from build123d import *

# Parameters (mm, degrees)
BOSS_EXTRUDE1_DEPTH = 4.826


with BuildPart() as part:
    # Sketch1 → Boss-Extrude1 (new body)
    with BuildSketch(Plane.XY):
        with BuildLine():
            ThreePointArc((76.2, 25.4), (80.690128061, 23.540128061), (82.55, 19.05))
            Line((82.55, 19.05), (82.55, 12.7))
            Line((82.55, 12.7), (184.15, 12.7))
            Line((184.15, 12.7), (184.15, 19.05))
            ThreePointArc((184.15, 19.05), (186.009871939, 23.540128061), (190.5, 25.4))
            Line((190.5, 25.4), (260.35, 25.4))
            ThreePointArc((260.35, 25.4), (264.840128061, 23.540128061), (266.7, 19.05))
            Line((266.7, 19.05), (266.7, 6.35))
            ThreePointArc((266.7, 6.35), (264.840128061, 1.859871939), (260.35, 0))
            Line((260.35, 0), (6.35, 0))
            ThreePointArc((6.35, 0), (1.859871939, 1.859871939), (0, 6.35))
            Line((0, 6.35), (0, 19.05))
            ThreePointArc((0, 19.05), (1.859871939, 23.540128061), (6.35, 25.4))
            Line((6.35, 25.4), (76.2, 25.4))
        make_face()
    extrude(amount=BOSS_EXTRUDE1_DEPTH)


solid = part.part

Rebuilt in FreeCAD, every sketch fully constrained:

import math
import FreeCAD as App
import Part
import Sketcher
from FreeCAD import Vector
Q = App.Units.Quantity

doc = App.newDocument("Part")
params = doc.addObject("Spreadsheet::Sheet", "Params")
for row, (alias, value) in enumerate([
    ("sketch1_width", "10 in"),
    ("sketch1_width2", "4 in"),
    ("sketch1_radius", "0.25 in"),
    ("sketch1_height", "0.5 in"),
    ("sketch1_height2", "0.25 in"),
    ("pad1_length", "0.19 in"),
], start=1):
    params.set(f"A{row}", alias)
    params.set(f"B{row}", "=" + value)
    params.setAlias(f"B{row}", alias)

body = doc.addObject("PartDesign::Body", "Body")

# Sketch on XY plane
sketch1 = doc.addObject("Sketcher::SketchObject", "Sketch")
body.addObject(sketch1)
sketch1.AttachmentSupport = (doc.XY_Plane, [""])
sketch1.MapMode = "FlatFace"
sketch1.addGeometry(Part.ArcOfCircle(Part.Circle(Vector(76, 19, 0), Vector(0, 0, 1), 6), math.radians(0), math.radians(90)), False)
sketch1.addGeometry(Part.LineSegment(Vector(76, 25, 0), Vector(6, 25, 0)), False)
sketch1.addGeometry(Part.ArcOfCircle(Part.Circle(Vector(6, 19, 0), Vector(0, 0, 1), 6), math.radians(90), math.radians(180)), False)
sketch1.addGeometry(Part.LineSegment(Vector(0, 19, 0), Vector(0, 6, 0)), False)
sketch1.addGeometry(Part.ArcOfCircle(Part.Circle(Vector(6, 6, 0), Vector(0, 0, 1), 6), math.radians(180), math.radians(270)), False)
sketch1.addGeometry(Part.LineSegment(Vector(6, 0, 0), Vector(260, 0, 0)), False)
sketch1.addGeometry(Part.ArcOfCircle(Part.Circle(Vector(260, 6, 0), Vector(0, 0, 1), 6), math.radians(-90), math.radians(0)), False)
sketch1.addGeometry(Part.LineSegment(Vector(267, 6, 0), Vector(267, 19, 0)), False)
sketch1.addGeometry(Part.ArcOfCircle(Part.Circle(Vector(260, 19, 0), Vector(0, 0, 1), 6), math.radians(0), math.radians(90)), False)
sketch1.addGeometry(Part.LineSegment(Vector(260, 25, 0), Vector(190, 25, 0)), False)
sketch1.addGeometry(Part.ArcOfCircle(Part.Circle(Vector(190, 19, 0), Vector(0, 0, 1), 6), math.radians(90), math.radians(180)), False)
sketch1.addGeometry(Part.LineSegment(Vector(184, 19, 0), Vector(184, 13, 0)), False)
sketch1.addGeometry(Part.LineSegment(Vector(184, 13, 0), Vector(83, 13, 0)), False)
sketch1.addGeometry(Part.LineSegment(Vector(83, 13, 0), Vector(83, 19, 0)), False)
sketch1.addConstraint(Sketcher.Constraint("Tangent", 0, 2, 1, 1))
sketch1.addConstraint(Sketcher.Constraint("Tangent", 1, 2, 2, 1))
sketch1.addConstraint(Sketcher.Constraint("Tangent", 2, 2, 3, 1))
sketch1.addConstraint(Sketcher.Constraint("Tangent", 3, 2, 4, 1))
sketch1.addConstraint(Sketcher.Constraint("Tangent", 4, 2, 5, 1))
sketch1.addConstraint(Sketcher.Constraint("Tangent", 5, 2, 6, 1))
sketch1.addConstraint(Sketcher.Constraint("Tangent", 6, 2, 7, 1))
sketch1.addConstraint(Sketcher.Constraint("Tangent", 7, 2, 8, 1))
sketch1.addConstraint(Sketcher.Constraint("Tangent", 8, 2, 9, 1))
sketch1.addConstraint(Sketcher.Constraint("Tangent", 9, 2, 10, 1))
sketch1.addConstraint(Sketcher.Constraint("Tangent", 10, 2, 11, 1))
sketch1.addConstraint(Sketcher.Constraint("Coincident", 11, 2, 12, 1))
sketch1.addConstraint(Sketcher.Constraint("Coincident", 12, 2, 13, 1))
sketch1.addConstraint(Sketcher.Constraint("Tangent", 13, 2, 0, 1))
sketch1.addConstraint(Sketcher.Constraint("Horizontal", 1))
sketch1.addConstraint(Sketcher.Constraint("Vertical", 3))
sketch1.addConstraint(Sketcher.Constraint("Horizontal", 5))
sketch1.addConstraint(Sketcher.Constraint("Vertical", 7))
sketch1.addConstraint(Sketcher.Constraint("Horizontal", 9))
sketch1.addConstraint(Sketcher.Constraint("Vertical", 11))
sketch1.addConstraint(Sketcher.Constraint("Horizontal", 12))
sketch1.addConstraint(Sketcher.Constraint("Vertical", 13))
sketch1.addConstraint(Sketcher.Constraint("Equal", 0, 2))
sketch1.addConstraint(Sketcher.Constraint("Equal", 2, 4))
sketch1.addConstraint(Sketcher.Constraint("Equal", 4, 6))
sketch1.addConstraint(Sketcher.Constraint("Equal", 6, 8))
sketch1.addConstraint(Sketcher.Constraint("Equal", 8, 10))
sketch1.addConstraint(Sketcher.Constraint("PointOnObject", 2, 2, -2))
sketch1.addConstraint(Sketcher.Constraint("PointOnObject", 4, 2, -1))
sketch1.addConstraint(Sketcher.Constraint("Horizontal", 2, 3, 8, 3))
sketch1.addConstraint(Sketcher.Constraint("Equal", 1, 9))
sketch1.addConstraint(Sketcher.Constraint("DistanceX", 5, 1, 5, 2, Q("10 in")))
sketch1.addConstraint(Sketcher.Constraint("DistanceX", 12, 2, 12, 1, Q("4 in")))
sketch1.addConstraint(Sketcher.Constraint("Radius", 0, Q("0.25 in")))
sketch1.addConstraint(Sketcher.Constraint("DistanceY", 3, 2, 3, 1, Q("0.5 in")))
sketch1.addConstraint(Sketcher.Constraint("DistanceY", 11, 2, 11, 1, Q("0.25 in")))
sketch1.setExpression("Constraints[31]", "Params.sketch1_width")
sketch1.setExpression("Constraints[32]", "Params.sketch1_width2")
sketch1.setExpression("Constraints[33]", "Params.sketch1_radius")
sketch1.setExpression("Constraints[34]", "Params.sketch1_height")
sketch1.setExpression("Constraints[35]", "Params.sketch1_height2")
pad1 = doc.addObject("PartDesign::Pad", "Pad")
body.addObject(pad1)
pad1.Profile = sketch1
pad1.setExpression("Length", "Params.pad1_length")

doc.recompute()
